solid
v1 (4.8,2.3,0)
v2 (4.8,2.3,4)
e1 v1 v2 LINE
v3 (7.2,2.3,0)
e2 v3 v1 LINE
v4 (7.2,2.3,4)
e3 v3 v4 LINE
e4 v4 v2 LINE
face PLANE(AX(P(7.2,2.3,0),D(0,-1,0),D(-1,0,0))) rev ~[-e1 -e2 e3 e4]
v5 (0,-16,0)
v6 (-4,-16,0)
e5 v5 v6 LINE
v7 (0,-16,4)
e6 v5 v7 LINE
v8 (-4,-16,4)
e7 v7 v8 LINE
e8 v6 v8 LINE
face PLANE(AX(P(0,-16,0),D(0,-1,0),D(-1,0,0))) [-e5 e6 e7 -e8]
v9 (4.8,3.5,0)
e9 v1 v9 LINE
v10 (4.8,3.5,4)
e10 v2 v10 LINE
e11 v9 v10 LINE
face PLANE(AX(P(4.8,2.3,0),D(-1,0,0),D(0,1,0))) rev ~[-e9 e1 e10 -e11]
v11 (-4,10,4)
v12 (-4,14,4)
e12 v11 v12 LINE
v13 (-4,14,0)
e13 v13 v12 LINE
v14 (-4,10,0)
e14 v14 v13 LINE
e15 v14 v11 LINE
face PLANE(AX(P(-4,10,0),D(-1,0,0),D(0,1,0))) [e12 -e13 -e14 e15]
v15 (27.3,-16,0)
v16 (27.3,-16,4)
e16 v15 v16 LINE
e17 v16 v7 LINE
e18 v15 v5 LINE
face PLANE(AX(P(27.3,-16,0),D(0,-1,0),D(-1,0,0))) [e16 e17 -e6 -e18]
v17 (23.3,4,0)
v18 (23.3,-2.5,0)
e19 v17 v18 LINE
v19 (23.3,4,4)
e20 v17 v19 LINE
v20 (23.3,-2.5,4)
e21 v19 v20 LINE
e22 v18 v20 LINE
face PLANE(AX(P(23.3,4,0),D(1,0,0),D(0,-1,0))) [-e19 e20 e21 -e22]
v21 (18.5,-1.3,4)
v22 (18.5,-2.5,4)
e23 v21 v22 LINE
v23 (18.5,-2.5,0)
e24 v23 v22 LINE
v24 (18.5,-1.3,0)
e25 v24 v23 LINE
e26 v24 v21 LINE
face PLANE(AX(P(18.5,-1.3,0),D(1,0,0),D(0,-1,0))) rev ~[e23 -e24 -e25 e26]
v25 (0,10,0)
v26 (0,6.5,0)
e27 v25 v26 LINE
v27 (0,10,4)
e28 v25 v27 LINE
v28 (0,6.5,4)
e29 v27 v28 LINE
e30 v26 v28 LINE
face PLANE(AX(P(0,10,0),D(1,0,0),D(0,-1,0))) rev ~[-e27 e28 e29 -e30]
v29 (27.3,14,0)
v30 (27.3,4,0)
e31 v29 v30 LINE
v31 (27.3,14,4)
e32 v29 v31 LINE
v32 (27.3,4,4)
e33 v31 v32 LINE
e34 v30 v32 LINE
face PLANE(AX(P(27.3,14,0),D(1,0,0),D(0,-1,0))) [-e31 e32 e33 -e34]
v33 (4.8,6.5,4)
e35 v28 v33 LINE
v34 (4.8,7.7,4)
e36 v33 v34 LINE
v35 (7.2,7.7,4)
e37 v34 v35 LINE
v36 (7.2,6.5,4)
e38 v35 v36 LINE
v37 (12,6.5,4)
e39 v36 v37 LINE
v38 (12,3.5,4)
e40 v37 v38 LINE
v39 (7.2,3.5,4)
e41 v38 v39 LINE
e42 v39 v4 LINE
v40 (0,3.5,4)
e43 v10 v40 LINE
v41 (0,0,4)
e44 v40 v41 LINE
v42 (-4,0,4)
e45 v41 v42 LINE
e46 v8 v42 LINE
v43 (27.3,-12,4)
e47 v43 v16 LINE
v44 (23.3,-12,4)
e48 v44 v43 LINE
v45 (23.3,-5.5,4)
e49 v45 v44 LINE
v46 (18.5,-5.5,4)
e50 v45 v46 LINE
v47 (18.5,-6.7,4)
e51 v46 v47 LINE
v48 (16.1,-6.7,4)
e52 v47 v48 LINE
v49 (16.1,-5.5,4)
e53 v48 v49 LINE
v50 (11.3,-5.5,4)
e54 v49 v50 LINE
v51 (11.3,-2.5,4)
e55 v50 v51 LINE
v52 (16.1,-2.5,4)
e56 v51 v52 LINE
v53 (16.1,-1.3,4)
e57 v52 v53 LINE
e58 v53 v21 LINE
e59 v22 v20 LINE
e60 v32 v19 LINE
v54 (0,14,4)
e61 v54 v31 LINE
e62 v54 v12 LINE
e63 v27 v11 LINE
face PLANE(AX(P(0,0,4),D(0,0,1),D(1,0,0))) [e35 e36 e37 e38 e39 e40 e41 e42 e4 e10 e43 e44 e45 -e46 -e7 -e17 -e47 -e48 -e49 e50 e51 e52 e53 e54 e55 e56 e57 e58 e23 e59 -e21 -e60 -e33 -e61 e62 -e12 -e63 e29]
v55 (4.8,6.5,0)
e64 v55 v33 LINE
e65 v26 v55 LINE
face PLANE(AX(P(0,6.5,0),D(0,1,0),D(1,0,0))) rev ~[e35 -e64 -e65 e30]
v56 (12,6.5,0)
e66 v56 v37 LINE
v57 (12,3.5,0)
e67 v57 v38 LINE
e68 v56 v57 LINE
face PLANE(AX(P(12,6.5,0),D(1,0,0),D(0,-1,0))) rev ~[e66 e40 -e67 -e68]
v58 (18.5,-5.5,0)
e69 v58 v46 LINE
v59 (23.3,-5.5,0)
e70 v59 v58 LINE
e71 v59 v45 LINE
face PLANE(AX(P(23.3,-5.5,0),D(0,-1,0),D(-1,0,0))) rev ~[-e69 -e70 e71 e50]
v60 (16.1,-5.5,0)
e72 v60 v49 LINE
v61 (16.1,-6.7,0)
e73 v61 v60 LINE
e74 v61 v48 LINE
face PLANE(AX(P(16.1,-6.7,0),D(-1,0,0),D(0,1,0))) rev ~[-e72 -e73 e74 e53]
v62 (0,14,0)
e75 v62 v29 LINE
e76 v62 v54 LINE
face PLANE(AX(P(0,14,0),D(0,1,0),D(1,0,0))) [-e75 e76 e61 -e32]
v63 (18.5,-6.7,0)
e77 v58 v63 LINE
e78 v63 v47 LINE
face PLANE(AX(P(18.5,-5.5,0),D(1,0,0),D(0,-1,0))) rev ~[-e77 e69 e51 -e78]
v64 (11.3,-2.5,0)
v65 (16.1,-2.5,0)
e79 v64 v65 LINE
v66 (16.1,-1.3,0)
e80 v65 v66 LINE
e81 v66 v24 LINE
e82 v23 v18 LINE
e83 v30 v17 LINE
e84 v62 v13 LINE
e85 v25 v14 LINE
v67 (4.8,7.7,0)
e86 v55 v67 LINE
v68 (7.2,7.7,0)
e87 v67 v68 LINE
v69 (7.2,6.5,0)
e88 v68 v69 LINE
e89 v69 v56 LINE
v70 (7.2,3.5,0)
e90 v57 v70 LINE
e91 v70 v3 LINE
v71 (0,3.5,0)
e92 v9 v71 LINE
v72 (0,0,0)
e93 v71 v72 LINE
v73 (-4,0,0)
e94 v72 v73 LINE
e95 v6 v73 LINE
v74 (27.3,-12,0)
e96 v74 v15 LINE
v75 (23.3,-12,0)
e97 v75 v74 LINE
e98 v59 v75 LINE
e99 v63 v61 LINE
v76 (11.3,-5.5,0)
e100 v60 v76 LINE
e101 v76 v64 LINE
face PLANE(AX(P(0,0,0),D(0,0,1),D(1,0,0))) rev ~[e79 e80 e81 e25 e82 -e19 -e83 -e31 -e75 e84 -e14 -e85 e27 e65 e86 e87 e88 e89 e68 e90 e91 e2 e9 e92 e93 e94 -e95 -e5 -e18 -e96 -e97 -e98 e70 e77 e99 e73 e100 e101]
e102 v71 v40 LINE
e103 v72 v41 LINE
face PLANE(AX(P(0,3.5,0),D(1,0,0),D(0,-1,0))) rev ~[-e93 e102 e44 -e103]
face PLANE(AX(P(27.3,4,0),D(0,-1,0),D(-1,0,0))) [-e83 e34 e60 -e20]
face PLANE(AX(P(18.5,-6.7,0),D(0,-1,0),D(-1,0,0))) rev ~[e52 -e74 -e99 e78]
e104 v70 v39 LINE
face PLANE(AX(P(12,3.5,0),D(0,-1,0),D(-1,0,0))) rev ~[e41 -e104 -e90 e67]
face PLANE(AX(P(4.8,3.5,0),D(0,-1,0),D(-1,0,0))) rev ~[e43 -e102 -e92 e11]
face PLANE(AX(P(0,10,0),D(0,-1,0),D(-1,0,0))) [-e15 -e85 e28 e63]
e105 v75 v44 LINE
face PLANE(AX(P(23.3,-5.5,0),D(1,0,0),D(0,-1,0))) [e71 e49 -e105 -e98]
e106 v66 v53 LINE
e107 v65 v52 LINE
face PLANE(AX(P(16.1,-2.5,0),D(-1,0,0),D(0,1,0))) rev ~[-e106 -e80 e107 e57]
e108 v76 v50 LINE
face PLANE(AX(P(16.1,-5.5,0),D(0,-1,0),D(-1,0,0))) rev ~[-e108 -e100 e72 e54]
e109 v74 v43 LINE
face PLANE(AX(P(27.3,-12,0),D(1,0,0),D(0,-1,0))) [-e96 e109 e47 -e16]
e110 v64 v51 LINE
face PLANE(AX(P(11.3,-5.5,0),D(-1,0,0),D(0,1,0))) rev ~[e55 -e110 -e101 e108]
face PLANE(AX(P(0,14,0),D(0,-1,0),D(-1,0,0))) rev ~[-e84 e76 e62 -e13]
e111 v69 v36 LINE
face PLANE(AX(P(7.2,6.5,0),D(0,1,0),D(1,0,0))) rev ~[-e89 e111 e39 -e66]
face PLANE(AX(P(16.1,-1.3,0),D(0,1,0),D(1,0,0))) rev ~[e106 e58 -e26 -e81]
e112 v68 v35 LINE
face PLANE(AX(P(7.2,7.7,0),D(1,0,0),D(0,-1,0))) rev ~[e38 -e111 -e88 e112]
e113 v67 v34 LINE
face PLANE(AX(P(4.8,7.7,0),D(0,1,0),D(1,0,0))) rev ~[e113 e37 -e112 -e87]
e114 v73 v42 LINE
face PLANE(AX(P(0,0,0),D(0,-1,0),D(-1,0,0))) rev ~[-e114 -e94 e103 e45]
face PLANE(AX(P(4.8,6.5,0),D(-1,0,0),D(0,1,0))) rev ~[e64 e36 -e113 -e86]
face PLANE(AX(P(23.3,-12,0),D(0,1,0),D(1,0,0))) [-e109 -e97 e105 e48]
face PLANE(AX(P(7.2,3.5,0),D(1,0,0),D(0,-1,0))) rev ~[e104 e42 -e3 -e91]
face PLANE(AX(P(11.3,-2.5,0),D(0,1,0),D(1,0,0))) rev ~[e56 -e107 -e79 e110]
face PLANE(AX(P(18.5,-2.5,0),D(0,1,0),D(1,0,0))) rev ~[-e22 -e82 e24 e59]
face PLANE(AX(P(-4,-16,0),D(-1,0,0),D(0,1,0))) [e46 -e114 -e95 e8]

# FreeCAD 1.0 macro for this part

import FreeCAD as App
import Part
import Sketcher
Q = App.Units.Quantity

doc = App.newDocument("Part")
body = doc.addObject("PartDesign::Body", "Body")

sketch1 = body.newObject("Sketcher::SketchObject", "Sketch")
sketch1.AttachmentSupport = (doc.getObject("XY_Plane"), [""])
sketch1.MapMode = "FlatFace"
sketch1.addGeometry([
    Part.LineSegment(App.Vector(-4, 14, 0), App.Vector(-4, 10, 0)),
    Part.LineSegment(App.Vector(-4, 10, 0), App.Vector(0, 10, 0)),
    Part.LineSegment(App.Vector(0, 10, 0), App.Vector(0, 6.5, 0)),
    Part.LineSegment(App.Vector(0, 6.5, 0), App.Vector(4.8, 6.5, 0)),
    Part.LineSegment(App.Vector(4.8, 6.5, 0), App.Vector(4.8, 7.7, 0)),
    Part.LineSegment(App.Vector(4.8, 7.7, 0), App.Vector(7.2, 7.7, 0)),
    Part.LineSegment(App.Vector(7.2, 7.7, 0), App.Vector(7.2, 6.5, 0)),
    Part.LineSegment(App.Vector(7.2, 6.5, 0), App.Vector(12, 6.5, 0)),
    Part.LineSegment(App.Vector(12, 6.5, 0), App.Vector(12, 3.5, 0)),
    Part.LineSegment(App.Vector(12, 3.5, 0), App.Vector(7.2, 3.5, 0)),
    Part.LineSegment(App.Vector(7.2, 3.5, 0), App.Vector(7.2, 2.3, 0)),
    Part.LineSegment(App.Vector(7.2, 2.3, 0), App.Vector(4.8, 2.3, 0)),
    Part.LineSegment(App.Vector(4.8, 2.3, 0), App.Vector(4.8, 3.5, 0)),
    Part.LineSegment(App.Vector(4.8, 3.5, 0), App.Vector(0, 3.5, 0)),
    Part.LineSegment(App.Vector(0, 3.5, 0), App.Vector(0, 0, 0)),
    Part.LineSegment(App.Vector(0, 0, 0), App.Vector(-4, 0, 0)),
    Part.LineSegment(App.Vector(-4, 0, 0), App.Vector(-4, -16, 0)),
    Part.LineSegment(App.Vector(-4, -16, 0), App.Vector(27.3, -16, 0)),
    Part.LineSegment(App.Vector(27.3, -16, 0), App.Vector(27.3, -12, 0)),
    Part.LineSegment(App.Vector(27.3, -12, 0), App.Vector(23.3, -12, 0)),
    Part.LineSegment(App.Vector(23.3, -12, 0), App.Vector(23.3, -5.5, 0)),
    Part.LineSegment(App.Vector(23.3, -5.5, 0), App.Vector(18.5, -5.5, 0)),
    Part.LineSegment(App.Vector(18.5, -5.5, 0), App.Vector(18.5, -6.7, 0)),
    Part.LineSegment(App.Vector(18.5, -6.7, 0), App.Vector(16.1, -6.7, 0)),
    Part.LineSegment(App.Vector(16.1, -6.7, 0), App.Vector(16.1, -5.5, 0)),
    Part.LineSegment(App.Vector(16.1, -5.5, 0), App.Vector(11.3, -5.5, 0)),
    Part.LineSegment(App.Vector(11.3, -5.5, 0), App.Vector(11.3, -2.5, 0)),
    Part.LineSegment(App.Vector(11.3, -2.5, 0), App.Vector(16.1, -2.5, 0)),
    Part.LineSegment(App.Vector(16.1, -2.5, 0), App.Vector(16.1, -1.3, 0)),
    Part.LineSegment(App.Vector(16.1, -1.3, 0), App.Vector(18.5, -1.3, 0)),
    Part.LineSegment(App.Vector(18.5, -1.3, 0), App.Vector(18.5, -2.5, 0)),
    Part.LineSegment(App.Vector(18.5, -2.5, 0), App.Vector(23.3, -2.5, 0)),
    Part.LineSegment(App.Vector(23.3, -2.5, 0), App.Vector(23.3, 4, 0)),
    Part.LineSegment(App.Vector(23.3, 4, 0), App.Vector(27.3, 4, 0)),
    Part.LineSegment(App.Vector(27.3, 4, 0), App.Vector(27.3, 14, 0)),
    Part.LineSegment(App.Vector(27.3, 14, 0), App.Vector(-4, 14, 0)),
], False)
sketch1.addConstraint([
    Sketcher.Constraint("Coincident", 0, 2, 1, 1),
    Sketcher.Constraint("Coincident", 1, 2, 2, 1),
    Sketcher.Constraint("Coincident", 2, 2, 3, 1),
    Sketcher.Constraint("Coincident", 3, 2, 4, 1),
    Sketcher.Constraint("Coincident", 4, 2, 5, 1),
    Sketcher.Constraint("Coincident", 5, 2, 6, 1),
    Sketcher.Constraint("Coincident", 6, 2, 7, 1),
    Sketcher.Constraint("Coincident", 7, 2, 8, 1),
    Sketcher.Constraint("Coincident", 8, 2, 9, 1),
    Sketcher.Constraint("Coincident", 9, 2, 10, 1),
    Sketcher.Constraint("Coincident", 10, 2, 11, 1),
    Sketcher.Constraint("Coincident", 11, 2, 12, 1),
    Sketcher.Constraint("Coincident", 12, 2, 13, 1),
    Sketcher.Constraint("Coincident", 13, 2, 14, 1),
    Sketcher.Constraint("Coincident", 14, 2, 15, 1),
    Sketcher.Constraint("Coincident", 15, 2, 16, 1),
    Sketcher.Constraint("Coincident", 16, 2, 17, 1),
    Sketcher.Constraint("Coincident", 17, 2, 18, 1),
    Sketcher.Constraint("Coincident", 18, 2, 19, 1),
    Sketcher.Constraint("Coincident", 19, 2, 20, 1),
    Sketcher.Constraint("Coincident", 20, 2, 21, 1),
    Sketcher.Constraint("Coincident", 21, 2, 22, 1),
    Sketcher.Constraint("Coincident", 22, 2, 23, 1),
    Sketcher.Constraint("Coincident", 23, 2, 24, 1),
    Sketcher.Constraint("Coincident", 24, 2, 25, 1),
    Sketcher.Constraint("Coincident", 25, 2, 26, 1),
    Sketcher.Constraint("Coincident", 26, 2, 27, 1),
    Sketcher.Constraint("Coincident", 27, 2, 28, 1),
    Sketcher.Constraint("Coincident", 28, 2, 29, 1),
    Sketcher.Constraint("Coincident", 29, 2, 30, 1),
    Sketcher.Constraint("Coincident", 30, 2, 31, 1),
    Sketcher.Constraint("Coincident", 31, 2, 32, 1),
    Sketcher.Constraint("Coincident", 32, 2, 33, 1),
    Sketcher.Constraint("Coincident", 33, 2, 34, 1),
    Sketcher.Constraint("Coincident", 34, 2, 35, 1),
    Sketcher.Constraint("Coincident", 35, 2, 0, 1),
    Sketcher.Constraint("Vertical", 0),
    Sketcher.Constraint("Horizontal", 1),
    Sketcher.Constraint("Vertical", 2),
    Sketcher.Constraint("Horizontal", 3),
    Sketcher.Constraint("Vertical", 4),
    Sketcher.Constraint("Horizontal", 5),
    Sketcher.Constraint("Vertical", 6),
    Sketcher.Constraint("Horizontal", 7),
    Sketcher.Constraint("Vertical", 8),
    Sketcher.Constraint("Horizontal", 9),
    Sketcher.Constraint("Vertical", 10),
    Sketcher.Constraint("Horizontal", 11),
    Sketcher.Constraint("Vertical", 12),
    Sketcher.Constraint("Horizontal", 13),
    Sketcher.Constraint("Vertical", 14),
    Sketcher.Constraint("Horizontal", 15),
    Sketcher.Constraint("Vertical", 16),
    Sketcher.Constraint("Horizontal", 17),
    Sketcher.Constraint("Vertical", 18),
    Sketcher.Constraint("Horizontal", 19),
    Sketcher.Constraint("Vertical", 20),
    Sketcher.Constraint("Horizontal", 21),
    Sketcher.Constraint("Vertical", 22),
    Sketcher.Constraint("Horizontal", 23),
    Sketcher.Constraint("Vertical", 24),
    Sketcher.Constraint("Horizontal", 25),
    Sketcher.Constraint("Vertical", 26),
    Sketcher.Constraint("Horizontal", 27),
    Sketcher.Constraint("Vertical", 28),
    Sketcher.Constraint("Horizontal", 29),
    Sketcher.Constraint("Vertical", 30),
    Sketcher.Constraint("Horizontal", 31),
    Sketcher.Constraint("Vertical", 32),
    Sketcher.Constraint("Horizontal", 33),
    Sketcher.Constraint("Vertical", 34),
    Sketcher.Constraint("Horizontal", 35),
    Sketcher.Constraint("Coincident", 14, 2, -1, 1),
    Sketcher.Constraint("PointOnObject", 1, 2, -2),
    Sketcher.Constraint("Horizontal", 3, 2, 6, 2),
    Sketcher.Constraint("Horizontal", 9, 2, 12, 2),
    Sketcher.Constraint("Horizontal", 21, 2, 24, 2),
    Sketcher.Constraint("Horizontal", 27, 2, 30, 2),
    Sketcher.Constraint("Vertical", 6, 2, 9, 2),
    Sketcher.Constraint("Vertical", 4, 2, 11, 2),
    Sketcher.Constraint("Vertical", 0, 2, 15, 2),
    Sketcher.Constraint("Vertical", 24, 2, 27, 2),
    Sketcher.Constraint("Vertical", 22, 2, 29, 2),
    Sketcher.Constraint("Vertical", 20, 2, 31, 2),
    Sketcher.Constraint("Vertical", 18, 2, 33, 2),
    Sketcher.Constraint("Equal", 3, 7),
    Sketcher.Constraint("Equal", 15, 19),
    Sketcher.Constraint("Equal", 13, 21),
    Sketcher.Constraint("Equal", 11, 23),
    Sketcher.Constraint("Equal", 21, 25),
    Sketcher.Constraint("Equal", 33, 0),
    Sketcher.Constraint("Equal", 6, 10),
    Sketcher.Constraint("Equal", 2, 14),
    Sketcher.Constraint("Equal", 0, 18),
    Sketcher.Constraint("Equal", 12, 22),
    Sketcher.Constraint("Equal", 8, 26),
    Sketcher.Constraint("Equal", 24, 28),
    Sketcher.Constraint("Equal", 20, 32),
    Sketcher.Constraint("DistanceX", 1, 1, 1, 2, Q("4 mm")),
    Sketcher.Constraint("DistanceY", 8, 2, 8, 1, Q("3 mm")),
    Sketcher.Constraint("DistanceY", 34, 1, 34, 2, Q("10 mm")),
    Sketcher.Constraint("DistanceX", 5, 1, 5, 2, Q("2.4 mm")),
    Sketcher.Constraint("DistanceY", -1, 1, 0, 2, Q("10 mm")),
    Sketcher.Constraint("DistanceX", -1, 1, 7, 2, Q("12 mm")),
    Sketcher.Constraint("DistanceY", 18, 2, -1, 1, Q("12 mm")),
    Sketcher.Constraint("DistanceX", -1, 1, 19, 2, Q("23.3 mm")),
    Sketcher.Constraint("DistanceY", 10, 2, 5, 2, Q("5.4 mm")),
])
pad1 = body.newObject("PartDesign::Pad", "Pad")
pad1.Profile = sketch1
pad1.Length = 4

doc.recompute()
